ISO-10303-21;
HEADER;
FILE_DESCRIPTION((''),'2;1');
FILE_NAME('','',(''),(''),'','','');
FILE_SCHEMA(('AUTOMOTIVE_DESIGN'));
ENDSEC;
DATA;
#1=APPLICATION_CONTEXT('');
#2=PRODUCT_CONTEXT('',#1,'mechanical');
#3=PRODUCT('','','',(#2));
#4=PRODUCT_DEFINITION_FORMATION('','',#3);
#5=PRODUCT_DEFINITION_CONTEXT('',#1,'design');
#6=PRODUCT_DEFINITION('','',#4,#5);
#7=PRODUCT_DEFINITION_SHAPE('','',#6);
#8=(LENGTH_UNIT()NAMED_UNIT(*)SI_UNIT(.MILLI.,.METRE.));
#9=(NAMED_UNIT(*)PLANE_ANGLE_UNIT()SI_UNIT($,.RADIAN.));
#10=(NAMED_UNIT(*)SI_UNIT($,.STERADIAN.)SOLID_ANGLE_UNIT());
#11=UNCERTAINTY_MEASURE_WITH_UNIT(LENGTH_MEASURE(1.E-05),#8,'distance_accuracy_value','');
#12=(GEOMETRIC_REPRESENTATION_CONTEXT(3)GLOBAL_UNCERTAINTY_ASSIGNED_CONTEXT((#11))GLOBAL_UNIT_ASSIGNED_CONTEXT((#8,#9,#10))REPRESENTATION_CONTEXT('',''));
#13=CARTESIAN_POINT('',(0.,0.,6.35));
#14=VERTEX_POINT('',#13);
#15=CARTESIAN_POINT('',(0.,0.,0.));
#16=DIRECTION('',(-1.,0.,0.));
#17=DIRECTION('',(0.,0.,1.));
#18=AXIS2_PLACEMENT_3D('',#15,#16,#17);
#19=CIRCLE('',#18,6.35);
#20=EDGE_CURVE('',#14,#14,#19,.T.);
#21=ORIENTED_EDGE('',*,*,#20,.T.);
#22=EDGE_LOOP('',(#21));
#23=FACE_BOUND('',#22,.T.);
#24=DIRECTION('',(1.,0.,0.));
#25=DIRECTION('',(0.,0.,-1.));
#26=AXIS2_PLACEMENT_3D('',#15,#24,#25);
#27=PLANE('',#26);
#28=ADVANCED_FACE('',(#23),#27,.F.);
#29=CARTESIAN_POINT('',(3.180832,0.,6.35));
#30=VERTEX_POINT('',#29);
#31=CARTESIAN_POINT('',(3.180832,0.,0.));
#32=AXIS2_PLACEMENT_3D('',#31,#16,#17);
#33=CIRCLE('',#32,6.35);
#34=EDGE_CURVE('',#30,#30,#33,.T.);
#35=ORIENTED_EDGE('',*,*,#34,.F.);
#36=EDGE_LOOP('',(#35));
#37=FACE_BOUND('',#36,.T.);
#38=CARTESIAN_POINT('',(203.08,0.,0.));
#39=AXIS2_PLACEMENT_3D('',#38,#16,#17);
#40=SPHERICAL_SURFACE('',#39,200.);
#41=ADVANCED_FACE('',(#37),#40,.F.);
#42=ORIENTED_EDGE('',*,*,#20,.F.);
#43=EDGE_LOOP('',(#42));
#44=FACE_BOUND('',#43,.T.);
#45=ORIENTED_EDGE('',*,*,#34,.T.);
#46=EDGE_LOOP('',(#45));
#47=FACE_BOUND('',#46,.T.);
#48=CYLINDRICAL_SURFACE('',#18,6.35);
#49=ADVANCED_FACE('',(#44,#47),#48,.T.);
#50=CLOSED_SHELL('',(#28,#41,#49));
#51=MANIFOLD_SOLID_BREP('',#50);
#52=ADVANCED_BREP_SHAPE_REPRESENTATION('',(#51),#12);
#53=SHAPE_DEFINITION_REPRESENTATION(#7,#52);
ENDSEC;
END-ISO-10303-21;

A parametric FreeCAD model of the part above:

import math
import FreeCAD as App
import Part
import Sketcher
from FreeCAD import Vector

doc = App.newDocument("Part")
body = doc.addObject("PartDesign::Body", "Body")

# Sketch on XZ plane
sketch1 = body.newObject("Sketcher::SketchObject", "Sketch")
sketch1.AttachmentSupport = (doc.getObject("XZ_Plane"), [""])
sketch1.MapMode = "FlatFace"
sketch1.addGeometry(Part.LineSegment(Vector(0, 0, 0), Vector(3.08, 0, 0)), False)
sketch1.addGeometry(Part.ArcOfCircle(Part.Circle(Vector(203.080001, 0, 0), Vector(0, 0, 1), 200.000001), math.radians(-180), math.radians(-178.180553)), False)
sketch1.addGeometry(Part.LineSegment(Vector(3.180832, -6.35, 0), Vector(0, -6.35, 0)), False)
sketch1.addGeometry(Part.LineSegment(Vector(0, -6.35, 0), Vector(0, 0, 0)), False)
sketch1.addConstraint(Sketcher.Constraint("Coincident", 0, 2, 1, 1))
sketch1.addConstraint(Sketcher.Constraint("Coincident", 1, 2, 2, 1))
sketch1.addConstraint(Sketcher.Constraint("Coincident", 2, 2, 3, 1))
sketch1.addConstraint(Sketcher.Constraint("Coincident", 3, 2, 0, 1))
sketch1.addConstraint(Sketcher.Constraint("Horizontal", 0))
sketch1.addConstraint(Sketcher.Constraint("Horizontal", 2))
sketch1.addConstraint(Sketcher.Constraint("Vertical", 3))
sketch1.addConstraint(Sketcher.Constraint("Coincident", 3, 2, -1, 1))
sketch1.addConstraint(Sketcher.Constraint("PointOnObject", 1, 3, -1))
sketch1.addConstraint(Sketcher.Constraint("Radius", 1, 200.000001))
sketch1.addConstraint(Sketcher.Constraint("DistanceX", 0, 1, 0, 2, 3.08))
sketch1.addConstraint(Sketcher.Constraint("DistanceY", 3, 1, 3, 2, 6.35))
revolution = body.newObject("PartDesign::Revolution", "Revolution")
revolution.Profile = sketch1
revolution.ReferenceAxis = (sketch1, ["H_Axis"])
revolution.Angle = 360

doc.recompute()
